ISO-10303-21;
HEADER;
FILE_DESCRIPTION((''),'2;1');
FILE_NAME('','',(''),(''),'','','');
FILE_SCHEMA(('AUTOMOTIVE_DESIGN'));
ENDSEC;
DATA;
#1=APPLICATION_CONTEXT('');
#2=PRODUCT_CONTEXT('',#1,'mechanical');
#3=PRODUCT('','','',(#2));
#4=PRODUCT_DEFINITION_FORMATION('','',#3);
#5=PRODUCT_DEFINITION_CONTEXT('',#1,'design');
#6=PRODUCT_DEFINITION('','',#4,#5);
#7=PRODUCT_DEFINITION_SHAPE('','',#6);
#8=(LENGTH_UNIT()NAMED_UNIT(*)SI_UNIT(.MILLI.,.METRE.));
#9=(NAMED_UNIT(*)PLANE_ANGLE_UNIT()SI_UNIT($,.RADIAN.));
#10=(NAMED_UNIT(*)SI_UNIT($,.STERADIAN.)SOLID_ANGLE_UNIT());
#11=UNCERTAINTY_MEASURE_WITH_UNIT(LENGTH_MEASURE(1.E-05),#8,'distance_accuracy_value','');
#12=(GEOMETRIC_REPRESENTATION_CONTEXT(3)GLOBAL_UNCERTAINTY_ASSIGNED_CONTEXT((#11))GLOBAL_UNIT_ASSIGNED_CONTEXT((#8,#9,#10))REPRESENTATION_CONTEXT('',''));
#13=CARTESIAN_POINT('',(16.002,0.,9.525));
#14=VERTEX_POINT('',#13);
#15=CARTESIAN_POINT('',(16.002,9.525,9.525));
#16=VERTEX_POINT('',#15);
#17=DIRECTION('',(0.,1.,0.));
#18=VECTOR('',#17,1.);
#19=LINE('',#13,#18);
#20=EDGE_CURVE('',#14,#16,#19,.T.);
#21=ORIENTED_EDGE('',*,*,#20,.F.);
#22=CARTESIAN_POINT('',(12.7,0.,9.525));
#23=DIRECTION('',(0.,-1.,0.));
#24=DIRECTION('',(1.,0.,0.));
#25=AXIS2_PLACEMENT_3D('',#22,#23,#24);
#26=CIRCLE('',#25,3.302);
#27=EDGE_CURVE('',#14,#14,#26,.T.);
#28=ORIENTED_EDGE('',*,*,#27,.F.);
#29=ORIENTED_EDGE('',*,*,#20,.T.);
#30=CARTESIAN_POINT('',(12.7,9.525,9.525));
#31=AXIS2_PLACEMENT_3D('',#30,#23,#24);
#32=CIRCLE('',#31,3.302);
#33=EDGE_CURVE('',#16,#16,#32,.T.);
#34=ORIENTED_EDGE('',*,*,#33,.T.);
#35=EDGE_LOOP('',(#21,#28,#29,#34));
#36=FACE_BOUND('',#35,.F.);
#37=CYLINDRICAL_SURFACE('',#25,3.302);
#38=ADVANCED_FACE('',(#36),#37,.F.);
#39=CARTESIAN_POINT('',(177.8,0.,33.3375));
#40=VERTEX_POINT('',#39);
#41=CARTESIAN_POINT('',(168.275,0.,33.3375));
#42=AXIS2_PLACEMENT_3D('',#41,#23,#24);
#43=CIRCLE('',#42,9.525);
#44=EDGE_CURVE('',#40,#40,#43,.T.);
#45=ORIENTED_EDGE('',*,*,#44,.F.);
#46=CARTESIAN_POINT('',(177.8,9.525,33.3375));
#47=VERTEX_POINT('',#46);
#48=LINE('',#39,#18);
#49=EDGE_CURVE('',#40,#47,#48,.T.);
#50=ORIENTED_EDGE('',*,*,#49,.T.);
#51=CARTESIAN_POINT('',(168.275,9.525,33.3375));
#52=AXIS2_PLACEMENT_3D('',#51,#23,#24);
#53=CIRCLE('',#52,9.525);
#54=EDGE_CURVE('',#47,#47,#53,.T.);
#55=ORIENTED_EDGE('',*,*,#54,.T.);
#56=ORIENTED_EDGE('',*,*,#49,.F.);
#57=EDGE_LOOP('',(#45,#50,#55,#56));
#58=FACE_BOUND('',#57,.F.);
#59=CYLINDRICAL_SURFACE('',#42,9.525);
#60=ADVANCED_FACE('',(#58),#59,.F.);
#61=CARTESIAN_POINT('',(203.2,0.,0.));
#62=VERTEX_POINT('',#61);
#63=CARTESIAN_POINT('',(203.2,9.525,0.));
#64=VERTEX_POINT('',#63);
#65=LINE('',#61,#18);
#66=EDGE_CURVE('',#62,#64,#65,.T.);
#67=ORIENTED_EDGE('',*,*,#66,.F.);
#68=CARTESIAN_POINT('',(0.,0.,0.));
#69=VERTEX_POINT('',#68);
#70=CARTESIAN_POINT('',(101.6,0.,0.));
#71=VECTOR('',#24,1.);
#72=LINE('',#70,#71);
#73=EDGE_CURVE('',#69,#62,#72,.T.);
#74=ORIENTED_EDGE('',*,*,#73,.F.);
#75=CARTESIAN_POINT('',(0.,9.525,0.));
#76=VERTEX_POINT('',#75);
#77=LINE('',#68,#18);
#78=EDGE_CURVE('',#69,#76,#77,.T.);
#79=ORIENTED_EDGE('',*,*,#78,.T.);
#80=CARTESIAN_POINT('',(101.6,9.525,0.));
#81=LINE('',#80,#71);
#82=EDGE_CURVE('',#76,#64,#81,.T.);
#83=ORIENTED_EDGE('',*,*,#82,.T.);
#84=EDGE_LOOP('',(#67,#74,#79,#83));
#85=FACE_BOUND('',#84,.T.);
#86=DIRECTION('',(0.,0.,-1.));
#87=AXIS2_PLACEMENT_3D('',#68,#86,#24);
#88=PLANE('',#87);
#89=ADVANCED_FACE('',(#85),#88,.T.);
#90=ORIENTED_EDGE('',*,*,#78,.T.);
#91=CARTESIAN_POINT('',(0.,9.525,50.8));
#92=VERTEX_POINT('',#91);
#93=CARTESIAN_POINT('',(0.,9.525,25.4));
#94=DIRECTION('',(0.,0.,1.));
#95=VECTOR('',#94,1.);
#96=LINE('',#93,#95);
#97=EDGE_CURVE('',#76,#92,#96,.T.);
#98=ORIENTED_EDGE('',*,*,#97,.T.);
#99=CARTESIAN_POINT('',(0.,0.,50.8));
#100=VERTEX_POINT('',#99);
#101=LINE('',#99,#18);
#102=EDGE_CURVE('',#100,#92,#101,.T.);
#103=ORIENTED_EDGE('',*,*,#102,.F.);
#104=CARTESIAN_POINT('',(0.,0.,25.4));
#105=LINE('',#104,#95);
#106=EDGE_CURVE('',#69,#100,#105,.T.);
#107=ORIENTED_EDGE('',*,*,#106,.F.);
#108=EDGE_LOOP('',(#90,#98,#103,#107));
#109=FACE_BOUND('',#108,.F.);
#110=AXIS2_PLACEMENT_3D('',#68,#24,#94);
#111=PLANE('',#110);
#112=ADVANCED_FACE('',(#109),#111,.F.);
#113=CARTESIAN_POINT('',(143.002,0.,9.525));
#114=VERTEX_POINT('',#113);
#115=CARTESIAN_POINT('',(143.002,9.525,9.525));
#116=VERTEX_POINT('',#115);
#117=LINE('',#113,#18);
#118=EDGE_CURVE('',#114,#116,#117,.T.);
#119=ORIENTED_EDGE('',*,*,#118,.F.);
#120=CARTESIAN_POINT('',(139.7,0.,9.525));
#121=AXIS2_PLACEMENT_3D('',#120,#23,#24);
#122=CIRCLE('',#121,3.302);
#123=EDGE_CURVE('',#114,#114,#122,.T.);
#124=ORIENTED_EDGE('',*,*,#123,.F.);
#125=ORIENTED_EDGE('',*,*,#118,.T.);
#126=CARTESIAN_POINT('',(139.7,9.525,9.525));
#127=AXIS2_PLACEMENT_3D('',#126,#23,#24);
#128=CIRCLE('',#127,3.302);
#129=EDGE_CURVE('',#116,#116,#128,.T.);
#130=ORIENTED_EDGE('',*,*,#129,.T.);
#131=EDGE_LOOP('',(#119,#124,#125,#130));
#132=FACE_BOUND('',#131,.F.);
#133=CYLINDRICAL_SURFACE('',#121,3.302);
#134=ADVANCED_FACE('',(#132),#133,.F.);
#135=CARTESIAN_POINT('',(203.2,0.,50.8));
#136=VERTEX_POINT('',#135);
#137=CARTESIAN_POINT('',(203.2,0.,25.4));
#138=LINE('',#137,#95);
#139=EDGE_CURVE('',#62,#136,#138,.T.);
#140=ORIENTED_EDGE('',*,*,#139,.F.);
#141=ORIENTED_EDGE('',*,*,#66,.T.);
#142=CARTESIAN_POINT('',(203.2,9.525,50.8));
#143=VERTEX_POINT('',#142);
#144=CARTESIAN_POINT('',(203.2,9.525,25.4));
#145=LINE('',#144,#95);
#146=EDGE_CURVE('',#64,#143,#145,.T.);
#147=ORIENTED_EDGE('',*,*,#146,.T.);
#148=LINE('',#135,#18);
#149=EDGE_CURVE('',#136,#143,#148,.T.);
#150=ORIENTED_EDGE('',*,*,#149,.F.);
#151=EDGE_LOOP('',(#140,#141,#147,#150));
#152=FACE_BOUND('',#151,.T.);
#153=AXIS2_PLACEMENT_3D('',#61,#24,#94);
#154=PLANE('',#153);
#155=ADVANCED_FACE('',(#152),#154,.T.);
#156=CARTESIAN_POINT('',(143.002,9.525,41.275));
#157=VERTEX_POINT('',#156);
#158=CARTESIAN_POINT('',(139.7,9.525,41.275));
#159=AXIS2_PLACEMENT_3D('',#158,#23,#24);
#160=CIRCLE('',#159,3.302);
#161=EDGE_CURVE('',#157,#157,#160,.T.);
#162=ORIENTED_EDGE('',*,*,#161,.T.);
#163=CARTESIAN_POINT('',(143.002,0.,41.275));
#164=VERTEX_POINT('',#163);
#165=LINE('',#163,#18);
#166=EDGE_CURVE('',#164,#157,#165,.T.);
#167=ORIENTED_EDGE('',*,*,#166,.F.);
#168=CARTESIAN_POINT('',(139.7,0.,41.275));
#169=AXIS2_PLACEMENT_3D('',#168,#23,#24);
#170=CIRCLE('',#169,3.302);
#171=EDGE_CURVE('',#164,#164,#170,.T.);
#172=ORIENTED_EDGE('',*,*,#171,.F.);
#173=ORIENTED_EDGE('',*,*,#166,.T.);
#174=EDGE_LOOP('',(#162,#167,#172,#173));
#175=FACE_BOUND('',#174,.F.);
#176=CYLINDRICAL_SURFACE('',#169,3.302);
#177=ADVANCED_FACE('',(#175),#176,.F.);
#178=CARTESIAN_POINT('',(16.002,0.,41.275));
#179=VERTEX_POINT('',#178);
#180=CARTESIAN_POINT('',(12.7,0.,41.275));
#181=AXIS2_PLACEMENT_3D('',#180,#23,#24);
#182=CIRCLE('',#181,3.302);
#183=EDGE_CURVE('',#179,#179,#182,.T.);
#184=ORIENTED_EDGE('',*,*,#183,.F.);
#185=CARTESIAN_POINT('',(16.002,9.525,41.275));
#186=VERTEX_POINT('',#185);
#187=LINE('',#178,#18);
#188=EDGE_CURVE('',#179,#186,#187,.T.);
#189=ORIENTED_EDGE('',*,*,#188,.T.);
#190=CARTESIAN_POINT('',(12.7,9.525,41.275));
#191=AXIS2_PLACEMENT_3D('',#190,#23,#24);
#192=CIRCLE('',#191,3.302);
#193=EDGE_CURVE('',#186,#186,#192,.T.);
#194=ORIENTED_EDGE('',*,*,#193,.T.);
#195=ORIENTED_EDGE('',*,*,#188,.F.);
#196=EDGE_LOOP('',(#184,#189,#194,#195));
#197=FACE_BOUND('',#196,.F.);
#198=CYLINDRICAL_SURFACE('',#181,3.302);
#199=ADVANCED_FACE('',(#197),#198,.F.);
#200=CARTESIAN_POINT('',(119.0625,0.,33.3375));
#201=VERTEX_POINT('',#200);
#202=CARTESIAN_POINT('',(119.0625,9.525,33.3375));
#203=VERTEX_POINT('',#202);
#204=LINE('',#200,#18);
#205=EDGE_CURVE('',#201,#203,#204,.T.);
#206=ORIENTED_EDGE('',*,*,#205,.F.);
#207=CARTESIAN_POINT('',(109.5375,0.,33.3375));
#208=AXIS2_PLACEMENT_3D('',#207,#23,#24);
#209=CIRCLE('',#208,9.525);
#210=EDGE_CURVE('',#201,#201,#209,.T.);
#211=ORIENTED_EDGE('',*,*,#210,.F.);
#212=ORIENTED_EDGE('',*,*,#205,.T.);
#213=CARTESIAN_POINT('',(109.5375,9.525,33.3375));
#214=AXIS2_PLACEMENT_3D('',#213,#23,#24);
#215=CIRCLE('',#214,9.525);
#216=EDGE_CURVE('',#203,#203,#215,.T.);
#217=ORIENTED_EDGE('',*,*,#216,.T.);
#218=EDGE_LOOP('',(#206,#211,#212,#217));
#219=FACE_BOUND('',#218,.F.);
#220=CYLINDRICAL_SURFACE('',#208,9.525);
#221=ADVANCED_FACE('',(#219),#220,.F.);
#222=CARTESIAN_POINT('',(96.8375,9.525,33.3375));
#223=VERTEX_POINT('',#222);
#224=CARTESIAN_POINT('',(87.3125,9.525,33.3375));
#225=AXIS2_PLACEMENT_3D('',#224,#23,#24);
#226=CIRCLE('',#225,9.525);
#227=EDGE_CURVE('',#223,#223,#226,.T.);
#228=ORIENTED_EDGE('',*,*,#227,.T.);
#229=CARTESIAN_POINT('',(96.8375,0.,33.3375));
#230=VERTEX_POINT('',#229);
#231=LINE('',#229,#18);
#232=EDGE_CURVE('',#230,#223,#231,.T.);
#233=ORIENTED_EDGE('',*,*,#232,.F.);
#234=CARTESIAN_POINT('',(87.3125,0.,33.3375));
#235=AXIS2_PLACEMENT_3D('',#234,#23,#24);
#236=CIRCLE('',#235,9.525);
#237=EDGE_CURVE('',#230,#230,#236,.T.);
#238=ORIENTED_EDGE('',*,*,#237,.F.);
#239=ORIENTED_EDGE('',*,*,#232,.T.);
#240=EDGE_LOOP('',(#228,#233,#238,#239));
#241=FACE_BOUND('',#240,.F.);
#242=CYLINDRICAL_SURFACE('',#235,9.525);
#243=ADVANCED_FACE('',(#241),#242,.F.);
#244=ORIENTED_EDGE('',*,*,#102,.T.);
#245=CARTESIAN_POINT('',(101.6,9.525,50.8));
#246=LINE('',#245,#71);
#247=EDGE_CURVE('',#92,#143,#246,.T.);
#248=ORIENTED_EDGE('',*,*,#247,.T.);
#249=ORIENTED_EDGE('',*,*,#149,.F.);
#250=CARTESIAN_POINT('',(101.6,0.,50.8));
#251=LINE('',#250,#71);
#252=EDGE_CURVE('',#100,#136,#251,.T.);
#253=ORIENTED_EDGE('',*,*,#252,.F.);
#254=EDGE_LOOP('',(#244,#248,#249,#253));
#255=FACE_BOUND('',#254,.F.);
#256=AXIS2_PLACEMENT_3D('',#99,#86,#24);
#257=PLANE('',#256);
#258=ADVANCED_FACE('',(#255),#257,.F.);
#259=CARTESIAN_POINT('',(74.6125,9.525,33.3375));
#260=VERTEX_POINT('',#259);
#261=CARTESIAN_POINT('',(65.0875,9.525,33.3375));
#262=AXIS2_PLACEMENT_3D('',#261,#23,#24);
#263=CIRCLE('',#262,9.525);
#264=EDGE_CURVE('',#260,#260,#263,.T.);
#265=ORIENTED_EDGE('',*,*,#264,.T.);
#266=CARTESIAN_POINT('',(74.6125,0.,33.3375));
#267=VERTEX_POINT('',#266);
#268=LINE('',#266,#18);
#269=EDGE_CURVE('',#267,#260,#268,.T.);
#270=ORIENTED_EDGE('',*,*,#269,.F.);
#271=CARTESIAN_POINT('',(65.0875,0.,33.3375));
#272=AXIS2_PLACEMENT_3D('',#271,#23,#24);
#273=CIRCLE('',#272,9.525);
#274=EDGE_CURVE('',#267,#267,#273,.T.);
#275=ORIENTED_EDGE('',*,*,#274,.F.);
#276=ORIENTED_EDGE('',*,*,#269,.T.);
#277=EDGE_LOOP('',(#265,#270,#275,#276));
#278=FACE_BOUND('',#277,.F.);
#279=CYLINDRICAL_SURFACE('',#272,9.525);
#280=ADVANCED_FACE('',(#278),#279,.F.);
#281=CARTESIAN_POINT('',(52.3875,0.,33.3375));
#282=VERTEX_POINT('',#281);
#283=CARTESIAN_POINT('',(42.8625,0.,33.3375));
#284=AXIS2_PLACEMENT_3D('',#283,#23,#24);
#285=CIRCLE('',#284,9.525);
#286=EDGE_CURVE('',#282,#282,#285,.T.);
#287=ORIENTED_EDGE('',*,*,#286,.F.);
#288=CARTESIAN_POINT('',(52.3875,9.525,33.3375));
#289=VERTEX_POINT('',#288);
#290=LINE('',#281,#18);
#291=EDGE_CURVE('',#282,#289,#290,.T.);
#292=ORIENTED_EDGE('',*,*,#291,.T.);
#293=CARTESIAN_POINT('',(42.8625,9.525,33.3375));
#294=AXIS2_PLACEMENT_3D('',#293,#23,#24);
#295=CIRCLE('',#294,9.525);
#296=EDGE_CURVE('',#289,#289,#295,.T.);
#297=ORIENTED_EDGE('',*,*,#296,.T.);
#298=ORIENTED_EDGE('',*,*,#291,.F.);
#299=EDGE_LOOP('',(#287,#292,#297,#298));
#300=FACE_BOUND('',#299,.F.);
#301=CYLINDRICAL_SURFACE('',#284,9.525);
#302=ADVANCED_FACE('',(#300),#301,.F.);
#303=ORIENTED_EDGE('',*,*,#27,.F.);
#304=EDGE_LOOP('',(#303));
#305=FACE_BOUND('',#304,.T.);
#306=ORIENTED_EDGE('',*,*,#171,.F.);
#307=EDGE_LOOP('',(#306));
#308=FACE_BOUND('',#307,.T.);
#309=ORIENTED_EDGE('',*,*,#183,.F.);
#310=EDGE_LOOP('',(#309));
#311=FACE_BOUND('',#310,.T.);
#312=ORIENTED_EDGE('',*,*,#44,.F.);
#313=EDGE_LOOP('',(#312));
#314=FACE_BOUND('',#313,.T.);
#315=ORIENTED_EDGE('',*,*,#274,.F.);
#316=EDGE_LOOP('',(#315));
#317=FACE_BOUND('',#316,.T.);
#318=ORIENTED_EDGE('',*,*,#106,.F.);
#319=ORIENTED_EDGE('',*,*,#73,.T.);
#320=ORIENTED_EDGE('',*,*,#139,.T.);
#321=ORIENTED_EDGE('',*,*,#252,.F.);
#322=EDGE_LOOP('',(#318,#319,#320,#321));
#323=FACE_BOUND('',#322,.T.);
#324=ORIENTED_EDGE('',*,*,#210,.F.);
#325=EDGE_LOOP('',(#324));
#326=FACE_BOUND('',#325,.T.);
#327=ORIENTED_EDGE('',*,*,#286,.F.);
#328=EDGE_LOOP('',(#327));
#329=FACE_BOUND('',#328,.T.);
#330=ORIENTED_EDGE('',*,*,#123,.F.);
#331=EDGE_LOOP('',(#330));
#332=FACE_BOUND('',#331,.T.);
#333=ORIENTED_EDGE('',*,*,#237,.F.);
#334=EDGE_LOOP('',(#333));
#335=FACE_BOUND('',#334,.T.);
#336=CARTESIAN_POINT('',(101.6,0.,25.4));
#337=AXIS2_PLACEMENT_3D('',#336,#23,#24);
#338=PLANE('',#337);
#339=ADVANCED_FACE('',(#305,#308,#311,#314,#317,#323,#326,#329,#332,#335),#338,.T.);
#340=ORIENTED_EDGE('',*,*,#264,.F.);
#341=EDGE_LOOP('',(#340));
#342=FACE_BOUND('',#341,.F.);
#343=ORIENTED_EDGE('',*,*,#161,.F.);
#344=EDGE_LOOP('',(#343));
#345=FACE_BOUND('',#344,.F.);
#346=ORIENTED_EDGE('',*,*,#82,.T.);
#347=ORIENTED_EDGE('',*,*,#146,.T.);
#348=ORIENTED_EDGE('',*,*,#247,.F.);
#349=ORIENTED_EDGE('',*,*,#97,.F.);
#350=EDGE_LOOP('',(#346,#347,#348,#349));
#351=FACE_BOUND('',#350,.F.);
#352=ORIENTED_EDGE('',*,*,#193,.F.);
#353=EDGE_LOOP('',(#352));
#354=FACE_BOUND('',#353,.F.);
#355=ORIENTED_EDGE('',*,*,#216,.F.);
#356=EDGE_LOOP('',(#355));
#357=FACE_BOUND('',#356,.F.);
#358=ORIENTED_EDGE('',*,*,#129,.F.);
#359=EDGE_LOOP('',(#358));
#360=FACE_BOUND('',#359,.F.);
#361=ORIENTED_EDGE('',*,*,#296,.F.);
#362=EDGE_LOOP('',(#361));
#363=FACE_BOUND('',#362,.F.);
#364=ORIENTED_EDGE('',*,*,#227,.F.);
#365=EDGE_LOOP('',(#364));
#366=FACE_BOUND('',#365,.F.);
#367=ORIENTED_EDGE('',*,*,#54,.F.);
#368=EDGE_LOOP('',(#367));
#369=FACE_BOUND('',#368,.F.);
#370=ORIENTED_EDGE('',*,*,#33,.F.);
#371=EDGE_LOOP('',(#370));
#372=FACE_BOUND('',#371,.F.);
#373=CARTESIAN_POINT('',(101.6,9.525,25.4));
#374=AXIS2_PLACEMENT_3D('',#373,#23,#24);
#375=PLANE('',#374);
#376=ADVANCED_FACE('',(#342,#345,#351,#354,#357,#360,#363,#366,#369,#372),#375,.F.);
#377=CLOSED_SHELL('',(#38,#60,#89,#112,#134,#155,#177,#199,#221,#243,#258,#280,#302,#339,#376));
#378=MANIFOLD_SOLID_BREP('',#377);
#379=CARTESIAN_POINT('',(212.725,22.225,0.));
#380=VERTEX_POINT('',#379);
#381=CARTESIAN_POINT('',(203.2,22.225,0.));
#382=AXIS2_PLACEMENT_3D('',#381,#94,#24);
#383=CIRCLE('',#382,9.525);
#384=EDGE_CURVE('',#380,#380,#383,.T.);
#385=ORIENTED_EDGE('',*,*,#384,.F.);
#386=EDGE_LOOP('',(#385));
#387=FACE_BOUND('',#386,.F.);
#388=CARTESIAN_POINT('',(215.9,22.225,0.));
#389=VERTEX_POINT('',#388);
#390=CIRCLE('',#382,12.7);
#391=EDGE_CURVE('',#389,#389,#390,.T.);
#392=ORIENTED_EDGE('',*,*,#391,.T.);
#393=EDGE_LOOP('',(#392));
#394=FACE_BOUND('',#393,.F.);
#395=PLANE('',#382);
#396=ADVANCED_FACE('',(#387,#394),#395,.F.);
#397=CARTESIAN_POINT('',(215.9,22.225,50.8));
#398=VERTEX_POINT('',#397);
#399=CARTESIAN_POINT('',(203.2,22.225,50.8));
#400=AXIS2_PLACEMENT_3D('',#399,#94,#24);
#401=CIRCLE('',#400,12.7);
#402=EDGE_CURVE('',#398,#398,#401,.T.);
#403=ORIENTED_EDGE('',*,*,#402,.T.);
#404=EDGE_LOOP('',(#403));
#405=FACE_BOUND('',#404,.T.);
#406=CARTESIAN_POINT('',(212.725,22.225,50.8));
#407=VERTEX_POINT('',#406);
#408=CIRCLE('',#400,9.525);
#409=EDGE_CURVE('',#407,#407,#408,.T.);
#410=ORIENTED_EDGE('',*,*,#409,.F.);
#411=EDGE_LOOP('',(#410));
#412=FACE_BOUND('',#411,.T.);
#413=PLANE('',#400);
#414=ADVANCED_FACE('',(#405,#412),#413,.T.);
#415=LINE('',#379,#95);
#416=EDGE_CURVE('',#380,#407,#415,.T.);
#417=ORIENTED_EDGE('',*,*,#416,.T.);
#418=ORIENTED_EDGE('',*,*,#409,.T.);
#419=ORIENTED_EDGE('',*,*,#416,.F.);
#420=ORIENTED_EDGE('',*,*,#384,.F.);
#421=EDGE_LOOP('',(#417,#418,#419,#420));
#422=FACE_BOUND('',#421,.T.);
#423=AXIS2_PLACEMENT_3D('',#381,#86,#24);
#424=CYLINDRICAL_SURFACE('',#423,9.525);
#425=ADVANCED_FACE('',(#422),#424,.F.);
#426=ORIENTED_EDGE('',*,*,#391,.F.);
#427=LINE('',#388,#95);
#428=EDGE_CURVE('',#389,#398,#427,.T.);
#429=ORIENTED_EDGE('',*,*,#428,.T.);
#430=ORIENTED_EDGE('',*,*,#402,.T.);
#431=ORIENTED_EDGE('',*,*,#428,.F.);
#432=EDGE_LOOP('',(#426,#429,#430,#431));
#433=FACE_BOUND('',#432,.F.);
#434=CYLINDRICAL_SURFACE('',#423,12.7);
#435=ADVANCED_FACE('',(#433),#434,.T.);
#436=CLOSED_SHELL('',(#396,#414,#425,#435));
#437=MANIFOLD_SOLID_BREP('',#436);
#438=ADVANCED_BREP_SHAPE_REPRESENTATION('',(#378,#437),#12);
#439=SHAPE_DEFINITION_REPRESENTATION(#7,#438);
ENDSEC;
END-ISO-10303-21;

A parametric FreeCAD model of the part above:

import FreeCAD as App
import Part
import Sketcher

V = App.Vector
Q = App.Units.Quantity


def add_polygon(sketch, points):
    """Adds a closed chain of lines whose ends are joined by coincident constraints."""
    first, n = sketch.GeometryCount, len(points)
    for a, b in zip(points, points[1:] + points[:1]):
        sketch.addGeometry(Part.LineSegment(App.Vector(*a, 0), App.Vector(*b, 0)), False)
    for i in range(n):
        sketch.addConstraint(Sketcher.Constraint("Coincident", first + i, 2, first + (i + 1) % n, 1))

doc = App.newDocument("Part")
body = doc.addObject("PartDesign::Body", "Body")

sketch1 = body.newObject("Sketcher::SketchObject", "Sketch")
sketch1.AttachmentSupport = (doc.getObject("XZ_Plane"), [""])
sketch1.MapMode = "FlatFace"
add_polygon(sketch1, [(0, 50.8), (0, 0), (203.2, 0), (203.2, 50.8)])
sketch1.addGeometry(Part.Circle(V(12.7, 9.5, 0), V(0, 0, 1), 3.3), False)
sketch1.addGeometry(Part.Circle(V(139.7, 9.5, 0), V(0, 0, 1), 3.3), False)
sketch1.addGeometry(Part.Circle(V(42.9, 33.3, 0), V(0, 0, 1), 9.5), False)
sketch1.addGeometry(Part.Circle(V(65.1, 33.3, 0), V(0, 0, 1), 9.5), False)
sketch1.addGeometry(Part.Circle(V(87.3, 33.3, 0), V(0, 0, 1), 9.5), False)
sketch1.addGeometry(Part.Circle(V(12.7, 41.3, 0), V(0, 0, 1), 3.3), False)
sketch1.addGeometry(Part.Circle(V(109.5, 33.3, 0), V(0, 0, 1), 9.5), False)
sketch1.addGeometry(Part.Circle(V(168.3, 33.3, 0), V(0, 0, 1), 9.5), False)
sketch1.addGeometry(Part.Circle(V(139.7, 41.3, 0), V(0, 0, 1), 3.3), False)
sketch1.addConstraint(Sketcher.Constraint("Vertical", 0))
sketch1.addConstraint(Sketcher.Constraint("Horizontal", 1))
sketch1.addConstraint(Sketcher.Constraint("Vertical", 2))
sketch1.addConstraint(Sketcher.Constraint("Horizontal", 3))
sketch1.addConstraint(Sketcher.Constraint("Coincident", 0, 2, -1, 1))
sketch1.addConstraint(Sketcher.Constraint("Equal", 4, 5))
sketch1.addConstraint(Sketcher.Constraint("Equal", 6, 7))
sketch1.addConstraint(Sketcher.Constraint("Equal", 7, 8))
sketch1.addConstraint(Sketcher.Constraint("Equal", 5, 9))
sketch1.addConstraint(Sketcher.Constraint("Equal", 8, 10))
sketch1.addConstraint(Sketcher.Constraint("Equal", 10, 11))
sketch1.addConstraint(Sketcher.Constraint("Equal", 9, 12))
sketch1.addConstraint(Sketcher.Constraint("Horizontal", 4, 3, 5, 3))
sketch1.addConstraint(Sketcher.Constraint("Horizontal", 6, 3, 7, 3))
sketch1.addConstraint(Sketcher.Constraint("Horizontal", 7, 3, 8, 3))
sketch1.addConstraint(Sketcher.Constraint("Horizontal", 8, 3, 10, 3))
sketch1.addConstraint(Sketcher.Constraint("Horizontal", 10, 3, 11, 3))
sketch1.addConstraint(Sketcher.Constraint("Horizontal", 9, 3, 12, 3))
sketch1.addConstraint(Sketcher.Constraint("Vertical", 4, 3, 9, 3))
sketch1.addConstraint(Sketcher.Constraint("Vertical", 5, 3, 12, 3))
sketch1.addConstraint(Sketcher.Constraint("Diameter", 4, Q("0.26 in")))
sketch1.addConstraint(Sketcher.Constraint("Diameter", 6, Q("0.75 in")))
sketch1.addConstraint(Sketcher.Constraint("DistanceX", 1, 1, 1, 2, Q("8 in")))
sketch1.addConstraint(Sketcher.Constraint("DistanceY", 0, 2, 0, 1, Q("2 in")))
sketch1.addConstraint(Sketcher.Constraint("DistanceX", 4, 3, 5, 3, Q("5 in")))
sketch1.addConstraint(Sketcher.Constraint("DistanceX", -1, 1, 4, 3, Q("0.5 in")))
sketch1.addConstraint(Sketcher.Constraint("DistanceX", 6, 3, 8, 3, Q("1.75 in")))
sketch1.addConstraint(Sketcher.Constraint("DistanceY", 4, 3, 9, 3, Q("1.25 in")))
sketch1.addConstraint(Sketcher.Constraint("DistanceX", 7, 3, 10, 3, Q("1.75 in")))
sketch1.addConstraint(Sketcher.Constraint("DistanceY", -1, 1, 4, 3, Q("0.375 in")))
sketch1.addConstraint(Sketcher.Constraint("DistanceX", -1, 1, 6, 3, Q("1.6875 in")))
sketch1.addConstraint(Sketcher.Constraint("DistanceY", -1, 1, 6, 3, Q("1.3125 in")))
sketch1.addConstraint(Sketcher.Constraint("DistanceX", -1, 1, 7, 3, Q("2.5625 in")))
sketch1.addConstraint(Sketcher.Constraint("DistanceX", -1, 1, 11, 3, Q("6.625 in")))
pad1 = body.newObject("PartDesign::Pad", "Pad")
pad1.Profile = sketch1
pad1.Length = Q("0.375 in")
pad1.Reversed = True
body2 = doc.addObject("PartDesign::Body", "Body001")

sketch2 = body2.newObject("Sketcher::SketchObject", "Sketch001")
sketch2.AttachmentSupport = (doc.getObject("XY_Plane001"), [""])
sketch2.MapMode = "FlatFace"
sketch2.addGeometry(Part.Circle(V(203, 22, 0), V(0, 0, 1), 13), False)
sketch2.addGeometry(Part.Circle(V(203, 22, 0), V(0, 0, 1), 10), False)
sketch2.addConstraint(Sketcher.Constraint("Coincident", 1, 3, 0, 3))
sketch2.addConstraint(Sketcher.Constraint("Diameter", 0, Q("1 in")))
sketch2.addConstraint(Sketcher.Constraint("Diameter", 1, Q("0.75 in")))
sketch2.addConstraint(Sketcher.Constraint("DistanceX", -1, 1, 0, 3, Q("8 in")))
sketch2.addConstraint(Sketcher.Constraint("DistanceY", -1, 1, 0, 3, Q("0.875 in")))
pad2 = body2.newObject("PartDesign::Pad", "Pad001")
pad2.Profile = sketch2
pad2.Length = Q("2 in")

doc.recompute()
